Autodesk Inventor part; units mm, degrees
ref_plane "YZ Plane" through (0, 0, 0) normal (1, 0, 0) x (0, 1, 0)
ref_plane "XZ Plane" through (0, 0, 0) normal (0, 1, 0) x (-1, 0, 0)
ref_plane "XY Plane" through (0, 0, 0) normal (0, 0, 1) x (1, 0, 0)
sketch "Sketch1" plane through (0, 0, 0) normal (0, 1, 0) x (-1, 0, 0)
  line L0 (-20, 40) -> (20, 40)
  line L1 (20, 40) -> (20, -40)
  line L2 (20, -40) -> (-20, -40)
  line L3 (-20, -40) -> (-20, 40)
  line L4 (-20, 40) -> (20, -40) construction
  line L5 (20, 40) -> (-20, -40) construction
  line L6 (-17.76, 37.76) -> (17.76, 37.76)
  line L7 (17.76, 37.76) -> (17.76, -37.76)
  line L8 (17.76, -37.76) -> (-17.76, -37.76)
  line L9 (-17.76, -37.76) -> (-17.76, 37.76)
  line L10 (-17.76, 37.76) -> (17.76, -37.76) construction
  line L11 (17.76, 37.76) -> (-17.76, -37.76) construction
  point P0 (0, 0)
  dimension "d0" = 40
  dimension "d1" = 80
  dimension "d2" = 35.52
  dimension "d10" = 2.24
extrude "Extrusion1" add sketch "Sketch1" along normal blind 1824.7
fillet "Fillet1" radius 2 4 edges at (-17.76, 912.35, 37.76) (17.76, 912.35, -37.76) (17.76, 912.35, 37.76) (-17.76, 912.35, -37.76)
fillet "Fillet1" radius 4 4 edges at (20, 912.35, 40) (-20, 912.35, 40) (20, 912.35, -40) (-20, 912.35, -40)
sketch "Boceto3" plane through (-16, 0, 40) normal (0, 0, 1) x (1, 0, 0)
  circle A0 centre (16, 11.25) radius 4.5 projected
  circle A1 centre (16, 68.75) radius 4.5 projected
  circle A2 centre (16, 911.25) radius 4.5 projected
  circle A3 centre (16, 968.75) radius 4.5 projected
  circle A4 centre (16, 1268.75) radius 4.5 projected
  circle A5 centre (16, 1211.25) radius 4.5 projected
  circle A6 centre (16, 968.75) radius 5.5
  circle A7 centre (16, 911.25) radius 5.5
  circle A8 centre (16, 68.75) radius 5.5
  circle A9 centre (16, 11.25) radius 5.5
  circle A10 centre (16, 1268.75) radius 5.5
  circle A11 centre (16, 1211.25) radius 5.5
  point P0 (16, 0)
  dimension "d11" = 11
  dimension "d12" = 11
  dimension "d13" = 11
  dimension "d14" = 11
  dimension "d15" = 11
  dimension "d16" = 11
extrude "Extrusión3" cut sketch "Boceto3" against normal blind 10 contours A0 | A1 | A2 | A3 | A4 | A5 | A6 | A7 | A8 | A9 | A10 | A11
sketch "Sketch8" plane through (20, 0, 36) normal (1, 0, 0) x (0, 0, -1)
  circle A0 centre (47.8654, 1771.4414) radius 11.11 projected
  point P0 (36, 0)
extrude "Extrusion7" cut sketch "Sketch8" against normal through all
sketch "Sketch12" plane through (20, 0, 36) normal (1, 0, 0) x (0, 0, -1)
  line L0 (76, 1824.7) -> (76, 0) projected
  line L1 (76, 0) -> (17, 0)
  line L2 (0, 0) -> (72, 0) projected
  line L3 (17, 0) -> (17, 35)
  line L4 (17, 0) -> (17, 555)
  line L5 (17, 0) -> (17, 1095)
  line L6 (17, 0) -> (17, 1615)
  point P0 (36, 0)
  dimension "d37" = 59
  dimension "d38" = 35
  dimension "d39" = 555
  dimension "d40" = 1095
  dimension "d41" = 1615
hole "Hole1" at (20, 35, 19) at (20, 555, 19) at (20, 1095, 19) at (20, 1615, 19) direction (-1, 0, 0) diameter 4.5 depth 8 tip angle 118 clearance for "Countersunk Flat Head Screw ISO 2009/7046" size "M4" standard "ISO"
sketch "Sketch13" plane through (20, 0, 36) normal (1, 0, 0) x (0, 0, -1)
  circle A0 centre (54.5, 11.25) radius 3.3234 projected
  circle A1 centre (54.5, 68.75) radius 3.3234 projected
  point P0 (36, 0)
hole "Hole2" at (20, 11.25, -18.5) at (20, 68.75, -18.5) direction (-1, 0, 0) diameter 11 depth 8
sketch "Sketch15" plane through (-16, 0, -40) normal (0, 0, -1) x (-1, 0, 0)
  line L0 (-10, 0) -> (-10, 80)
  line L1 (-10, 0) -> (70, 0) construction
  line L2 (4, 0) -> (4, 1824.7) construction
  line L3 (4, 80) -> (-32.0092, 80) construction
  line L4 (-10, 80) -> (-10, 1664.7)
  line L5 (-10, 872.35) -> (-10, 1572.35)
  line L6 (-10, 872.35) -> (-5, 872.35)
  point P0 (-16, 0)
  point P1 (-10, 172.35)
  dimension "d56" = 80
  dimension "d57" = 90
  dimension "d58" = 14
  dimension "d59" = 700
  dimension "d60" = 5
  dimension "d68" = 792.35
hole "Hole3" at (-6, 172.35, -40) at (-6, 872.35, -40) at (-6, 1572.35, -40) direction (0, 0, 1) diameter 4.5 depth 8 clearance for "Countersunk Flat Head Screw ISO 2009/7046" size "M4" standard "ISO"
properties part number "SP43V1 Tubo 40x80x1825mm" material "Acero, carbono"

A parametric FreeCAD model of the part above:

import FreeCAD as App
import Part
import Sketcher

V = App.Vector


def edges_at(feature, points):
    """Names of the edges that pass closest to the given points."""
    edges = feature.Shape.Edges
    near = lambda p: min(range(len(edges)), key=lambda i: edges[i].distToShape(Part.Vertex(*p))[0])
    return sorted({f"Edge{near(p) + 1}" for p in points})

doc = App.newDocument("Part")
body = doc.addObject("PartDesign::Body", "Body")

sketch1 = doc.addObject("Sketcher::SketchObject", "Sketch")
body.addObject(sketch1)
sketch1.AttachmentSupport = (doc.XZ_Plane, [""])
sketch1.MapMode = "FlatFace"
sketch1.addGeometry(Part.LineSegment(V(-20, 40, 0), V(20, 40, 0)), False)
sketch1.addGeometry(Part.LineSegment(V(20, 40, 0), V(20, -40, 0)), False)
sketch1.addGeometry(Part.LineSegment(V(20, -40, 0), V(-20, -40, 0)), False)
sketch1.addGeometry(Part.LineSegment(V(-20, -40, 0), V(-20, 40, 0)), False)
sketch1.addGeometry(Part.LineSegment(V(18, -38, 0), V(18, 38, 0)), False)
sketch1.addGeometry(Part.LineSegment(V(18, 38, 0), V(-18, 38, 0)), False)
sketch1.addGeometry(Part.LineSegment(V(-18, 38, 0), V(-18, -38, 0)), False)
sketch1.addGeometry(Part.LineSegment(V(-18, -38, 0), V(18, -38, 0)), False)
sketch1.addConstraint(Sketcher.Constraint("Coincident", 0, 2, 1, 1))
sketch1.addConstraint(Sketcher.Constraint("Coincident", 1, 2, 2, 1))
sketch1.addConstraint(Sketcher.Constraint("Coincident", 2, 2, 3, 1))
sketch1.addConstraint(Sketcher.Constraint("Coincident", 3, 2, 0, 1))
sketch1.addConstraint(Sketcher.Constraint("Coincident", 4, 2, 5, 1))
sketch1.addConstraint(Sketcher.Constraint("Coincident", 5, 2, 6, 1))
sketch1.addConstraint(Sketcher.Constraint("Coincident", 6, 2, 7, 1))
sketch1.addConstraint(Sketcher.Constraint("Coincident", 7, 2, 4, 1))
sketch1.addConstraint(Sketcher.Constraint("Horizontal", 0))
sketch1.addConstraint(Sketcher.Constraint("Vertical", 1))
sketch1.addConstraint(Sketcher.Constraint("Horizontal", 2))
sketch1.addConstraint(Sketcher.Constraint("Vertical", 3))
sketch1.addConstraint(Sketcher.Constraint("Vertical", 4))
sketch1.addConstraint(Sketcher.Constraint("Horizontal", 5))
sketch1.addConstraint(Sketcher.Constraint("Vertical", 6))
sketch1.addConstraint(Sketcher.Constraint("Horizontal", 7))
sketch1.addConstraint(Sketcher.Constraint("Symmetric", 0, 2, 2, 2, -1, 1))
sketch1.addConstraint(Sketcher.Constraint("Symmetric", 4, 2, 6, 2, -1, 1))
sketch1.addConstraint(Sketcher.Constraint("DistanceX", 0, 1, 0, 2, 40.0))
sketch1.addConstraint(Sketcher.Constraint("DistanceY", 1, 2, 1, 1, 80.0))
sketch1.addConstraint(Sketcher.Constraint("DistanceX", 5, 2, 5, 1, 35.52))
sketch1.addConstraint(Sketcher.Constraint("DistanceY", 4, 2, 0, 2, 2.24))
pad1 = doc.addObject("PartDesign::Pad", "Pad")
body.addObject(pad1)
pad1.Profile = sketch1
pad1.Length = 1824.7
pad1.Reversed = True
doc.recompute()

fillet = doc.addObject("PartDesign::Fillet", "Fillet")
body.addObject(fillet)
fillet.Base = (pad1, edges_at(pad1, [
    (-17.76, 912.35, 37.76),
    (17.76, 912.35, -37.76),
    (17.76, 912.35, 37.76),
    (-17.76, 912.35, -37.76),
]))
fillet.Radius = 2
doc.recompute()

fillet2 = doc.addObject("PartDesign::Fillet", "Fillet001")
body.addObject(fillet2)
fillet2.Base = (fillet, edges_at(fillet, [
    (20, 912.35, 40),
    (-20, 912.35, 40),
    (20, 912.35, -40),
    (-20, 912.35, -40),
]))
fillet2.Radius = 4

sketch2 = doc.addObject("Sketcher::SketchObject", "Sketch001")
body.addObject(sketch2)
sketch2.AttachmentSupport = (doc.XY_Plane, [""])
sketch2.MapMode = "FlatFace"
sketch2.AttachmentOffset = App.Placement(V(0, 0, 40), App.Rotation())
sketch2.addGeometry(Part.Circle(V(0, 11, 0), V(0, 0, 1), 6), False)
sketch2.addGeometry(Part.Circle(V(0, 69, 0), V(0, 0, 1), 6), False)
sketch2.addGeometry(Part.Circle(V(0, 911, 0), V(0, 0, 1), 6), False)
sketch2.addGeometry(Part.Circle(V(0, 969, 0), V(0, 0, 1), 6), False)
sketch2.addGeometry(Part.Circle(V(0, 1269, 0), V(0, 0, 1), 6), False)
sketch2.addGeometry(Part.Circle(V(0, 1211, 0), V(0, 0, 1), 6), False)
sketch2.addConstraint(Sketcher.Constraint("Equal", 0, 1))
sketch2.addConstraint(Sketcher.Constraint("Equal", 1, 2))
sketch2.addConstraint(Sketcher.Constraint("Equal", 2, 3))
sketch2.addConstraint(Sketcher.Constraint("Equal", 3, 4))
sketch2.addConstraint(Sketcher.Constraint("Equal", 4, 5))
sketch2.addConstraint(Sketcher.Constraint("PointOnObject", 0, 3, -2))
sketch2.addConstraint(Sketcher.Constraint("PointOnObject", 1, 3, -2))
sketch2.addConstraint(Sketcher.Constraint("PointOnObject", 2, 3, -2))
sketch2.addConstraint(Sketcher.Constraint("PointOnObject", 3, 3, -2))
sketch2.addConstraint(Sketcher.Constraint("PointOnObject", 4, 3, -2))
sketch2.addConstraint(Sketcher.Constraint("PointOnObject", 5, 3, -2))
sketch2.addConstraint(Sketcher.Constraint("Diameter", 0, 11.0))
sketch2.addConstraint(Sketcher.Constraint("DistanceY", 0, 3, 2, 3, 900.0))
sketch2.addConstraint(Sketcher.Constraint("DistanceY", 1, 3, 3, 3, 900.0))
sketch2.addConstraint(Sketcher.Constraint("DistanceY", 3, 3, 4, 3, 300.0))
sketch2.addConstraint(Sketcher.Constraint("DistanceY", 2, 3, 5, 3, 300.0))
sketch2.addConstraint(Sketcher.Constraint("DistanceY", 0, 3, 1, 3, 57.5))
sketch2.addConstraint(Sketcher.Constraint("DistanceY", -1, 1, 0, 3, 11.25))
pocket1 = doc.addObject("PartDesign::Pocket", "Pocket")
body.addObject(pocket1)
pocket1.Profile = sketch2
pocket1.Length = 10

sketch3 = doc.addObject("Sketcher::SketchObject", "Sketch002")
body.addObject(sketch3)
sketch3.AttachmentSupport = (doc.YZ_Plane, [""])
sketch3.MapMode = "FlatFace"
sketch3.AttachmentOffset = App.Placement(V(0, 0, 20), App.Rotation())
sketch3.addGeometry(Part.Circle(V(1771, -12, 0), V(0, 0, 1), 11), False)
sketch3.addConstraint(Sketcher.Constraint("Diameter", 0, 22.22))
sketch3.addConstraint(Sketcher.Constraint("DistanceX", -1, 1, 0, 3, 1771.4414))
sketch3.addConstraint(Sketcher.Constraint("DistanceY", 0, 3, -1, 1, 11.8654))
pocket2 = doc.addObject("PartDesign::Pocket", "Pocket001")
body.addObject(pocket2)
pocket2.Profile = sketch3
pocket2.Type = "ThroughAll"

sketch4 = doc.addObject("Sketcher::SketchObject", "Sketch003")
body.addObject(sketch4)
sketch4.AttachmentSupport = (doc.YZ_Plane, [""])
sketch4.MapMode = "FlatFace"
sketch4.AttachmentOffset = App.Placement(V(0, 0, 20), App.Rotation())
sketch4.addGeometry(Part.Circle(V(35, 19, 0), V(0, 0, 1), 2.2), False)
sketch4.addGeometry(Part.Circle(V(555, 19, 0), V(0, 0, 1), 2.2), False)
sketch4.addGeometry(Part.Circle(V(1095, 19, 0), V(0, 0, 1), 2.2), False)
sketch4.addGeometry(Part.Circle(V(1615, 19, 0), V(0, 0, 1), 2.2), False)
sketch4.addConstraint(Sketcher.Constraint("Equal", 0, 1))
sketch4.addConstraint(Sketcher.Constraint("Equal", 1, 2))
sketch4.addConstraint(Sketcher.Constraint("Equal", 2, 3))
sketch4.addConstraint(Sketcher.Constraint("Horizontal", 0, 3, 1, 3))
sketch4.addConstraint(Sketcher.Constraint("Horizontal", 1, 3, 2, 3))
sketch4.addConstraint(Sketcher.Constraint("Horizontal", 2, 3, 3, 3))
sketch4.addConstraint(Sketcher.Constraint("Diameter", 0, 4.5))
sketch4.addConstraint(Sketcher.Constraint("DistanceX", -1, 1, 0, 3, 35.0))
sketch4.addConstraint(Sketcher.Constraint("DistanceY", -1, 1, 0, 3, 19.0))
sketch4.addConstraint(Sketcher.Constraint("DistanceX", -1, 1, 1, 3, 555.0))
sketch4.addConstraint(Sketcher.Constraint("DistanceX", -1, 1, 2, 3, 1095.0))
sketch4.addConstraint(Sketcher.Constraint("DistanceX", -1, 1, 3, 3, 1615.0))
doc.recompute()
hole = doc.addObject("PartDesign::Hole", "Hole")
body.addObject(hole)
hole.Profile = sketch4
hole.ThreadType = "None"
hole.Diameter = 4.5
hole.DepthType = "Dimension"
hole.Depth = 8
hole.DrillPoint = "Angled"
hole.DrillPointAngle = 118

sketch5 = doc.addObject("Sketcher::SketchObject", "Sketch004")
body.addObject(sketch5)
sketch5.AttachmentSupport = (doc.YZ_Plane, [""])
sketch5.MapMode = "FlatFace"
sketch5.AttachmentOffset = App.Placement(V(0, 0, 20), App.Rotation())
sketch5.addGeometry(Part.Circle(V(11, -18, 0), V(0, 0, 1), 6), False)
sketch5.addGeometry(Part.Circle(V(69, -18, 0), V(0, 0, 1), 6), False)
sketch5.addConstraint(Sketcher.Constraint("Equal", 0, 1))
sketch5.addConstraint(Sketcher.Constraint("Horizontal", 0, 3, 1, 3))
sketch5.addConstraint(Sketcher.Constraint("Diameter", 0, 11.0))
sketch5.addConstraint(Sketcher.Constraint("DistanceY", 0, 3, -1, 1, 18.5))
sketch5.addConstraint(Sketcher.Constraint("DistanceX", 0, 3, 1, 3, 57.5))
sketch5.addConstraint(Sketcher.Constraint("DistanceX", -1, 1, 0, 3, 11.25))
doc.recompute()
hole2 = doc.addObject("PartDesign::Hole", "Hole001")
body.addObject(hole2)
hole2.Profile = sketch5
hole2.ThreadType = "None"
hole2.Diameter = 11
hole2.DepthType = "Dimension"
hole2.Depth = 8
hole2.DrillPoint = "Flat"

sketch6 = doc.addObject("Sketcher::SketchObject", "Sketch005")
body.addObject(sketch6)
sketch6.AttachmentSupport = (doc.XY_Plane, [""])
sketch6.MapMode = "FlatFace"
sketch6.AttachmentOffset = App.Placement(V(0, 0, -40), App.Rotation())
sketch6.addGeometry(Part.Circle(V(-6, 172.3, 0), V(0, 0, 1), 2.2), False)
sketch6.addGeometry(Part.Circle(V(-6, 872.4, 0), V(0, 0, 1), 2.2), False)
sketch6.addGeometry(Part.Circle(V(-6, 1572.3, 0), V(0, 0, 1), 2.2), False)
sketch6.addConstraint(Sketcher.Constraint("Equal", 0, 1))
sketch6.addConstraint(Sketcher.Constraint("Equal", 1, 2))
sketch6.addConstraint(Sketcher.Constraint("Vertical", 0, 3, 1, 3))
sketch6.addConstraint(Sketcher.Constraint("Vertical", 1, 3, 2, 3))
sketch6.addConstraint(Sketcher.Constraint("Diameter", 0, 4.5))
sketch6.addConstraint(Sketcher.Constraint("DistanceX", 0, 3, -1, 1, 6.0))
sketch6.addConstraint(Sketcher.Constraint("DistanceY", 0, 3, 1, 3, 700.0))
sketch6.addConstraint(Sketcher.Constraint("DistanceY", 1, 3, 2, 3, 700.0))
sketch6.addConstraint(Sketcher.Constraint("DistanceY", -1, 1, 0, 3, 172.35))
doc.recompute()
hole3 = doc.addObject("PartDesign::Hole", "Hole002")
body.addObject(hole3)
hole3.Profile = sketch6
hole3.ThreadType = "None"
hole3.Diameter = 4.5
hole3.DepthType = "Dimension"
hole3.Depth = 8
hole3.DrillPoint = "Flat"
hole3.Reversed = True

doc.recompute()
